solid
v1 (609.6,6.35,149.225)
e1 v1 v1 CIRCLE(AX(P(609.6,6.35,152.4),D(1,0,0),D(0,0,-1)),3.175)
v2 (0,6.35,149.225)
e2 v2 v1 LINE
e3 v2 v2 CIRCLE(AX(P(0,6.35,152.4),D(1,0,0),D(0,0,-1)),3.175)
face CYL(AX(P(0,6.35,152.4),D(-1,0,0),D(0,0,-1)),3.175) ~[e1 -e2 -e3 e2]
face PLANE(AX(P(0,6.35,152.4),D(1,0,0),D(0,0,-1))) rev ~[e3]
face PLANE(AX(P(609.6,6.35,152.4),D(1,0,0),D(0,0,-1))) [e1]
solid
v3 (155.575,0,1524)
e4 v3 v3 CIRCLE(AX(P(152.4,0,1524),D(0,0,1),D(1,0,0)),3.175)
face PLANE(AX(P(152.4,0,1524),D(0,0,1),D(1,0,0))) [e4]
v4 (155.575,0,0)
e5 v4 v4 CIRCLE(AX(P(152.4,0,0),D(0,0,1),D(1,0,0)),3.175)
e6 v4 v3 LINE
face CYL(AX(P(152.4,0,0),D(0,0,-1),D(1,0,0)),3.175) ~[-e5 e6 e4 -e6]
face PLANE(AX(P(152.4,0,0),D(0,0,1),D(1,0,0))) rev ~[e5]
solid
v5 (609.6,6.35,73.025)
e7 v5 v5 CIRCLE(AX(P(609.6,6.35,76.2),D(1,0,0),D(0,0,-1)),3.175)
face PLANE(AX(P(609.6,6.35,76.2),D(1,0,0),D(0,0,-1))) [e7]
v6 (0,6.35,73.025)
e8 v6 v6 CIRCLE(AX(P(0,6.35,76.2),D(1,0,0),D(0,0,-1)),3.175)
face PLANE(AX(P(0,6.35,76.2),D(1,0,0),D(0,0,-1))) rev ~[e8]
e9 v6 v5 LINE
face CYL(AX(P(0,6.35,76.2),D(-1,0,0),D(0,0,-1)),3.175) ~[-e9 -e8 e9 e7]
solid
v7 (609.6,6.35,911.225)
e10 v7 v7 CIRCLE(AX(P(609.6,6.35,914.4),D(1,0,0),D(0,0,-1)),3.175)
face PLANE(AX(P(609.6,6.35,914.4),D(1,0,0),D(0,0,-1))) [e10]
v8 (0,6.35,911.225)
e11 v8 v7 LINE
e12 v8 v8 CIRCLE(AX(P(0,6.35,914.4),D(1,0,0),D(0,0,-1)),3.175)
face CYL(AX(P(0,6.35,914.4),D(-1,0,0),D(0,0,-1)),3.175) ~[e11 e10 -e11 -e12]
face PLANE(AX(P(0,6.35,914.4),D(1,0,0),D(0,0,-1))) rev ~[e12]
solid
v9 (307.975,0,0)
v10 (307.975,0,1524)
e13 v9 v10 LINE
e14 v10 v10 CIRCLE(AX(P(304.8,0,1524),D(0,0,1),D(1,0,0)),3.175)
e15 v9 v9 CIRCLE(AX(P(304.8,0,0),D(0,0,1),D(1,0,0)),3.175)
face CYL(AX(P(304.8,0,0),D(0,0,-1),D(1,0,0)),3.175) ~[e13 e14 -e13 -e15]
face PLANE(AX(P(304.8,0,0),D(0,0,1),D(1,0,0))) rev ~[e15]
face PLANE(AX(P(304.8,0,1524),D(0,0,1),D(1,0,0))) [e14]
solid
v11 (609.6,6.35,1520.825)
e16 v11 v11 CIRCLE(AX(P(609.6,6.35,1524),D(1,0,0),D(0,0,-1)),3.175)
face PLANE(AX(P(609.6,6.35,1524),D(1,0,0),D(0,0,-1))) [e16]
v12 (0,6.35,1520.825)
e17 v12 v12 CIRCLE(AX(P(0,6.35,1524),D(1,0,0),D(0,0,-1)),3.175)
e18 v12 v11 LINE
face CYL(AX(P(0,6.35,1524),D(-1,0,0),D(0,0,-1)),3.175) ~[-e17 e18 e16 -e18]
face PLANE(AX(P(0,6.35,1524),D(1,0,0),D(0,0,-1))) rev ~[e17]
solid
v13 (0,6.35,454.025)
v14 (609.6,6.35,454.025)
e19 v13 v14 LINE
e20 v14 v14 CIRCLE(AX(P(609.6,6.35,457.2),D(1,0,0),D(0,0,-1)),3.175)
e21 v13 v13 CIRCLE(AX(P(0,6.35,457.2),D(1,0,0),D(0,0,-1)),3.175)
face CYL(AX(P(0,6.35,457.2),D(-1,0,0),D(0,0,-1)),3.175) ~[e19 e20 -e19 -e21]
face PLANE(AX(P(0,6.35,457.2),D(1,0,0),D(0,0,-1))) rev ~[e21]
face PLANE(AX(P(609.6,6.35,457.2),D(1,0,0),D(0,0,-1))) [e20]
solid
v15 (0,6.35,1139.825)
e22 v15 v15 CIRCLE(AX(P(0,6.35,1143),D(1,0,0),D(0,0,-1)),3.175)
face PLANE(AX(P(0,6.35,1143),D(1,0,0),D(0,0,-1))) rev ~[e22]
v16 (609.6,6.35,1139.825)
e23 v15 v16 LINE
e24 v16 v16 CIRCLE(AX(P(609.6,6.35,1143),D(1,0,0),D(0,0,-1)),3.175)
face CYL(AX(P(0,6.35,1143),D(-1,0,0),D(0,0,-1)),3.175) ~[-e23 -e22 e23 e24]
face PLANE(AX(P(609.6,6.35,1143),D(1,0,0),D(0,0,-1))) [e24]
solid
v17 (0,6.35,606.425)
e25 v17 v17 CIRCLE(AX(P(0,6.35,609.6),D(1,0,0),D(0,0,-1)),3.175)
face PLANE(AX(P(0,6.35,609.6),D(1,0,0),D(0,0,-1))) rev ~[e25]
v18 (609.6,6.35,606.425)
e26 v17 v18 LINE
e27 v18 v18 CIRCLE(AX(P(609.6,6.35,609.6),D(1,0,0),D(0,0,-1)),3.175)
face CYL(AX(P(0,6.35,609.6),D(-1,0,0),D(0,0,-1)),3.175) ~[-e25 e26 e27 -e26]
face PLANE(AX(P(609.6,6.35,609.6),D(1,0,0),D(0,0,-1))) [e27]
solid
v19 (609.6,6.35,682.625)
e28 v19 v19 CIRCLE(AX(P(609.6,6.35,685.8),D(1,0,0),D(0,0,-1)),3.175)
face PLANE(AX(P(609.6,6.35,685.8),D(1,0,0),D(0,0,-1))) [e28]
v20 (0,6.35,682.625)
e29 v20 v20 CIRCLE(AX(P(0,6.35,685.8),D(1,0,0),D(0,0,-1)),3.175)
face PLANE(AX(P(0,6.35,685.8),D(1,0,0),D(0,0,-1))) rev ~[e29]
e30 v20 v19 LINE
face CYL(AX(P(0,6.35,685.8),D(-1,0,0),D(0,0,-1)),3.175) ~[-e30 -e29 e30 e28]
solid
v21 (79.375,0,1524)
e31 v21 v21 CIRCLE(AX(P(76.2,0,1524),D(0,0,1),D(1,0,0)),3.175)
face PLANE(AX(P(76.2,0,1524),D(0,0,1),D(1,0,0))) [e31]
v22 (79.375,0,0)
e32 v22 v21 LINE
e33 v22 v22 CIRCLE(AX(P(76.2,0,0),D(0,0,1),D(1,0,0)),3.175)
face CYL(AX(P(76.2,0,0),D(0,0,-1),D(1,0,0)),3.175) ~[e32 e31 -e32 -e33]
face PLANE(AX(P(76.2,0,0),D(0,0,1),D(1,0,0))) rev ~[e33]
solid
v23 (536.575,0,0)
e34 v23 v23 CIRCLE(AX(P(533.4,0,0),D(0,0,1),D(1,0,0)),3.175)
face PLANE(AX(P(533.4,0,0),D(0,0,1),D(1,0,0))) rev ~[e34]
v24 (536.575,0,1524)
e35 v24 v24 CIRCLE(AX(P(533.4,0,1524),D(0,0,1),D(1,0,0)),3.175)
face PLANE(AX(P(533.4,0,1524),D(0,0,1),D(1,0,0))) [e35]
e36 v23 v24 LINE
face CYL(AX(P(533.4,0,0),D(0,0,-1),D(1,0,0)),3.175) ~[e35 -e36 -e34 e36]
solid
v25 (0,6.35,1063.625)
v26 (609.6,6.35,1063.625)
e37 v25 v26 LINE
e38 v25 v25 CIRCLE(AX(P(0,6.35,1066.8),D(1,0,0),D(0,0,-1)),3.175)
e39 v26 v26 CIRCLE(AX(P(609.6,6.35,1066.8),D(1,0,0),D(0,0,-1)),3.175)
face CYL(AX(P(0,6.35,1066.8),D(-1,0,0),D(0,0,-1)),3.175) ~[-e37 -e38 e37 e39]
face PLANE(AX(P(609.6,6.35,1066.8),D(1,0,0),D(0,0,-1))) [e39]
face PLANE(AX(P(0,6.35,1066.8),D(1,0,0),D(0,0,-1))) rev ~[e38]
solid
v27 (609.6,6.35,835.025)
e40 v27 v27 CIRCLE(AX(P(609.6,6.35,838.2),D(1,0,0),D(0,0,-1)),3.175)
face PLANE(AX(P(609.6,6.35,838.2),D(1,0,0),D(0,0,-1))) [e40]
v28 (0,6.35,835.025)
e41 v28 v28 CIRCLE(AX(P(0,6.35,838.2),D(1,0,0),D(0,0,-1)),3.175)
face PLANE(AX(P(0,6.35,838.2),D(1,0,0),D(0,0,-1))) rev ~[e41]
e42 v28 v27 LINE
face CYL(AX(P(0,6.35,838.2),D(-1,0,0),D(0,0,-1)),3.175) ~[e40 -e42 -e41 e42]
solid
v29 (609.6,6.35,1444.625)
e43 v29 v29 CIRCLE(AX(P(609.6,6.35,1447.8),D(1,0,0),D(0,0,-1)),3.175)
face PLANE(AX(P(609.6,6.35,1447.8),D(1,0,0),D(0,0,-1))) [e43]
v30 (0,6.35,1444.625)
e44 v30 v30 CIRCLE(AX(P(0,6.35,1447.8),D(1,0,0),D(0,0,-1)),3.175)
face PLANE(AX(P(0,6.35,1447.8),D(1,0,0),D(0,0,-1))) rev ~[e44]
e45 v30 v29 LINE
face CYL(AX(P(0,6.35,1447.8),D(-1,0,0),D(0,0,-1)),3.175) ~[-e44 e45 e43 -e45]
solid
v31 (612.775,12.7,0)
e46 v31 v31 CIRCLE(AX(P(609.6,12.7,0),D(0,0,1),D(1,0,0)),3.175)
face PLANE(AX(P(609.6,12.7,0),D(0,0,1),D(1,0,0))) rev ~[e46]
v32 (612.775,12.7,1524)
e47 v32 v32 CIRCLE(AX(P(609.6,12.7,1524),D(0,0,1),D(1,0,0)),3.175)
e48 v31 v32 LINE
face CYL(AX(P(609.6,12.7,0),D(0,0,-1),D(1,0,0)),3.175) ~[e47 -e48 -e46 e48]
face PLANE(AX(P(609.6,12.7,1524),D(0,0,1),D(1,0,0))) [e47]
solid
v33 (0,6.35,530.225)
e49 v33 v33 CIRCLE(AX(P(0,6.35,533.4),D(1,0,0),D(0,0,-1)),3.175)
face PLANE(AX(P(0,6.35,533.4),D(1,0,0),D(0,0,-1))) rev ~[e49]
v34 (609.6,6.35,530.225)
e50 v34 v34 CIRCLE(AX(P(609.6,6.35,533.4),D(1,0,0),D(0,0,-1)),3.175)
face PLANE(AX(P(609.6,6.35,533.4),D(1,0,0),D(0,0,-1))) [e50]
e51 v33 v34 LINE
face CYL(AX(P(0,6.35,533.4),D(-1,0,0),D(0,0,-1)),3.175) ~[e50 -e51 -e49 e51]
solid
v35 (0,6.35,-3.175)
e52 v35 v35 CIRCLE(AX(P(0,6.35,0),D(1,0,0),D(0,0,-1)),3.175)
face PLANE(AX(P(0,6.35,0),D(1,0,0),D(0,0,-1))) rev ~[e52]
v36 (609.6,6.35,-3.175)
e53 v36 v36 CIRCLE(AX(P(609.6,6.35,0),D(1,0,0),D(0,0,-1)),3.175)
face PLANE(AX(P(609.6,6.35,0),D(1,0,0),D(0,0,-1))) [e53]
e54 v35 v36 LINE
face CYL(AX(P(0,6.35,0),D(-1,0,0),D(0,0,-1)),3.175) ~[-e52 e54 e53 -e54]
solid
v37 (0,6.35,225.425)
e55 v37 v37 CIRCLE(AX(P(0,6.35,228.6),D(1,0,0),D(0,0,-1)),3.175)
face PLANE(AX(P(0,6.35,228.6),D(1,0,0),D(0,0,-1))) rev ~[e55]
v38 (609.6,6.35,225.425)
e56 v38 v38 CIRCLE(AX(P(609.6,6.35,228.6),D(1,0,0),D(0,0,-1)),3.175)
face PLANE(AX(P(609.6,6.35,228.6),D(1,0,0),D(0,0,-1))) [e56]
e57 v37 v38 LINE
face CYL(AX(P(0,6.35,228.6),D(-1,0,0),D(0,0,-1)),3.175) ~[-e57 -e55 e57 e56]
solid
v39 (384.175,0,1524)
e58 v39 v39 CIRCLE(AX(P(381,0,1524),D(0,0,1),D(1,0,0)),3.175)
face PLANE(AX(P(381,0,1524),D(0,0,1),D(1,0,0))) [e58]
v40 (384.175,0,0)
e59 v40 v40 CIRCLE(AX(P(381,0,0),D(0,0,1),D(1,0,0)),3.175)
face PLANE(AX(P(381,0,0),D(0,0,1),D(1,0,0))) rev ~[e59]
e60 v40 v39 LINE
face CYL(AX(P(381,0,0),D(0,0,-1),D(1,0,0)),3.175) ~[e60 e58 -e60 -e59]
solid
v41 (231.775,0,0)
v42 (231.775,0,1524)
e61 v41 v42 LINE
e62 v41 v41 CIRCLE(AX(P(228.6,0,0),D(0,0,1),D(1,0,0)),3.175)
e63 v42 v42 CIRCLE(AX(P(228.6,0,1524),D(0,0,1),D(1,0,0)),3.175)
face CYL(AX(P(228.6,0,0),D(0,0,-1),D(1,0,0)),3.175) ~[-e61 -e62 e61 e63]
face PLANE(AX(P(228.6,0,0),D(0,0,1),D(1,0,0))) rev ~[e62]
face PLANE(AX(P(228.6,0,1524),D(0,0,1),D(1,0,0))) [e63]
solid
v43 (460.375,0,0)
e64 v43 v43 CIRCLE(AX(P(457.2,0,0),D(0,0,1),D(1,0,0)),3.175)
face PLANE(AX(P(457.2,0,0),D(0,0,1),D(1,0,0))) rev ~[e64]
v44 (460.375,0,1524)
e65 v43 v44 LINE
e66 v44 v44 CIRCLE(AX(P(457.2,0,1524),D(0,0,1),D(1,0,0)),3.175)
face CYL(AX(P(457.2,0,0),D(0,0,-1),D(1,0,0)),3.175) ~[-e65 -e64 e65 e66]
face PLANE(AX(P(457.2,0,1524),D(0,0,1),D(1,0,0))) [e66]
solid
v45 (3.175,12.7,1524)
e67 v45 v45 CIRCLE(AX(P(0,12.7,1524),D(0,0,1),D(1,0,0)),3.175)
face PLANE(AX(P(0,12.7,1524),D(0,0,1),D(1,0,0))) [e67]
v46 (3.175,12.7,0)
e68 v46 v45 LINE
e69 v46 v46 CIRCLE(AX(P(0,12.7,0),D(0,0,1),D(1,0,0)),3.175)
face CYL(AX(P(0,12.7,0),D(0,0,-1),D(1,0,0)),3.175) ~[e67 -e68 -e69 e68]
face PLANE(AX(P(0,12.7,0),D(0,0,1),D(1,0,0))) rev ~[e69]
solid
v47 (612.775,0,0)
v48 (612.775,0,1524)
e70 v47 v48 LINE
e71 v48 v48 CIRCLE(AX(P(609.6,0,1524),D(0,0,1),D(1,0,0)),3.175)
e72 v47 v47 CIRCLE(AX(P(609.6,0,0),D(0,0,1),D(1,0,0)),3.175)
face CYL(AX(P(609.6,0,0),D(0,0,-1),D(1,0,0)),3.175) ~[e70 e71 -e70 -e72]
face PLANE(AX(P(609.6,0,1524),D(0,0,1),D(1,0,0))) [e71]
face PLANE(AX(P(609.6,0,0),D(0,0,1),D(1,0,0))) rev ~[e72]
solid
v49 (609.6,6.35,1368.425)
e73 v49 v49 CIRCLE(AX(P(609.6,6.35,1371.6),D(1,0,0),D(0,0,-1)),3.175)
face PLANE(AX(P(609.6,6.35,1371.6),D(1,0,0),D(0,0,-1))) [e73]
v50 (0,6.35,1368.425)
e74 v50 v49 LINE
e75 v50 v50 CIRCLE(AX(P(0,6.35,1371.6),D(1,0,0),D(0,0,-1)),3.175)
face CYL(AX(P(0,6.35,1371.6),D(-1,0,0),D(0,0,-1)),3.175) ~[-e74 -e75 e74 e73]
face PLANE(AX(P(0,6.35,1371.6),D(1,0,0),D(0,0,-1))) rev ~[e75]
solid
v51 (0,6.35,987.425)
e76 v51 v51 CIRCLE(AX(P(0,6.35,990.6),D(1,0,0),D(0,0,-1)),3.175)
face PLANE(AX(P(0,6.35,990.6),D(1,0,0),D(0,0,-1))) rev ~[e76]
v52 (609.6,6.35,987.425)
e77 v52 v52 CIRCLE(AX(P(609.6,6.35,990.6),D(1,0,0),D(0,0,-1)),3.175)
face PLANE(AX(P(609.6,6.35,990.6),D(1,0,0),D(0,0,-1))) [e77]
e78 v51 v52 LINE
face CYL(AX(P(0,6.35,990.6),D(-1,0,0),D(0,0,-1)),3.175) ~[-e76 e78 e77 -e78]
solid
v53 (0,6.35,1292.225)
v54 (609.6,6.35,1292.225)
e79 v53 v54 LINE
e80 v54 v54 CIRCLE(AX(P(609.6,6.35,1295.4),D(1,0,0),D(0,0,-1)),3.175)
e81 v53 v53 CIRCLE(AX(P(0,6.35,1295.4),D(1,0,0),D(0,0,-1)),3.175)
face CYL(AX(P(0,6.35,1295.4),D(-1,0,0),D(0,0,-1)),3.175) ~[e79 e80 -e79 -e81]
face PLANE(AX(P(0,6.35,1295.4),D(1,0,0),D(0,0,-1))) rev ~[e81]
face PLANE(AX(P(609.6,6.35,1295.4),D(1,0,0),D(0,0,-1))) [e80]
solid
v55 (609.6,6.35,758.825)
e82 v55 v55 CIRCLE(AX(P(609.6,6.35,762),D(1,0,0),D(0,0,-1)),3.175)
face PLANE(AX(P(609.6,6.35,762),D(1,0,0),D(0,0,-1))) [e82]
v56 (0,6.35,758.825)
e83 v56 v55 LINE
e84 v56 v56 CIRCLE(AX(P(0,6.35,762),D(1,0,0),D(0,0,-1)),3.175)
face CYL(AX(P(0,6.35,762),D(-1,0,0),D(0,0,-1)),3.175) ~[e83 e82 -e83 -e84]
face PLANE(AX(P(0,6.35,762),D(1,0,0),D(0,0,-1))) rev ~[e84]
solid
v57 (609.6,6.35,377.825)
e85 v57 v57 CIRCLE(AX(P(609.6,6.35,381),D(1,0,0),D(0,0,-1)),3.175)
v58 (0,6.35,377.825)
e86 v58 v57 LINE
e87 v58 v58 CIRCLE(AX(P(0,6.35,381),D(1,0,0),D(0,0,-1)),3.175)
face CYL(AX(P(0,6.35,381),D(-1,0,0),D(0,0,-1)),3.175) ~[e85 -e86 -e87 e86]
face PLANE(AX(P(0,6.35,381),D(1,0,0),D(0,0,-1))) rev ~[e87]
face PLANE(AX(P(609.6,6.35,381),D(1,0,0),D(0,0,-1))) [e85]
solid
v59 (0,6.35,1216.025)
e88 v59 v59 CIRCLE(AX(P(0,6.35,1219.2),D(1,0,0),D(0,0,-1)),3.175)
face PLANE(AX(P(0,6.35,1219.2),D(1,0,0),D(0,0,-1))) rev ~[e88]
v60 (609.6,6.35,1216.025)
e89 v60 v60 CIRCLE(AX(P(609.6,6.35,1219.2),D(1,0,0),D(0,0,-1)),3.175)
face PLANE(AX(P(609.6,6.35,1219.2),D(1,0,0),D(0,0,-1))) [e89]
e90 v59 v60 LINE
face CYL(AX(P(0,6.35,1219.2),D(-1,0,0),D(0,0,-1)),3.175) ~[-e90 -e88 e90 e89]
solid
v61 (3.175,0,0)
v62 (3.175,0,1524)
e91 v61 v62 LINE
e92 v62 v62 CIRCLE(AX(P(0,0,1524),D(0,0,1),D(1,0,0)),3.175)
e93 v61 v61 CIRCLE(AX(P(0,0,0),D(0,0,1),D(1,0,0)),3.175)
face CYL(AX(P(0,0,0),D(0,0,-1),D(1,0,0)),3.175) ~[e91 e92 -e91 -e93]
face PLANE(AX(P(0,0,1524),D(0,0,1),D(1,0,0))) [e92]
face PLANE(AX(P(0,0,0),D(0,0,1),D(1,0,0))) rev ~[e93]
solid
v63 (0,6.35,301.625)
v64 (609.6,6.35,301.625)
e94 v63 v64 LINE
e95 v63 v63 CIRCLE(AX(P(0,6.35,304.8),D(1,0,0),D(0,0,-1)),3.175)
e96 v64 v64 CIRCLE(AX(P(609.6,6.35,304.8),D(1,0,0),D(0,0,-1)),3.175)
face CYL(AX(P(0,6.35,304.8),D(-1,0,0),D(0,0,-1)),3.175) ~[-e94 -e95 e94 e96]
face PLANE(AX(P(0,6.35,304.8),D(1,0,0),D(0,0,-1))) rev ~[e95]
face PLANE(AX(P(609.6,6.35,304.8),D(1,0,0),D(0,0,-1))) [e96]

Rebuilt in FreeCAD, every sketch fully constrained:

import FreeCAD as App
import Part
import Sketcher

V = App.Vector
Q = App.Units.Quantity

doc = App.newDocument("Part")
body = doc.addObject("PartDesign::Body", "Body")

# Sketch on XY plane
sketch1 = body.newObject("Sketcher::SketchObject", "Sketch")
sketch1.AttachmentSupport = (doc.getObject("XY_Plane"), [""])
sketch1.MapMode = "FlatFace"
sketch1.addGeometry(Part.Circle(V(0, 0, 0), V(0, 0, 1), 3.2), False)
sketch1.addConstraint([
    Sketcher.Constraint("Coincident", 0, 3, -1, 1),
    Sketcher.Constraint("Diameter", 0, Q("0.25 in")),
])
pad1 = body.newObject("PartDesign::Pad", "Pad")
pad1.Profile = sketch1
pad1.Length = Q("60 in")
body2 = doc.addObject("PartDesign::Body", "Body001")

# Sketch on XY plane
sketch2 = body2.newObject("Sketcher::SketchObject", "Sketch001")
sketch2.AttachmentSupport = (doc.getObject("XY_Plane001"), [""])
sketch2.MapMode = "FlatFace"
sketch2.addGeometry(Part.Circle(V(0, 12.7, 0), V(0, 0, 1), 3.2), False)
sketch2.addConstraint([
    Sketcher.Constraint("PointOnObject", 0, 3, -2),
    Sketcher.Constraint("Diameter", 0, Q("0.25 in")),
    Sketcher.Constraint("DistanceY", -1, 1, 0, 3, Q("0.5 in")),
])
pad2 = body2.newObject("PartDesign::Pad", "Pad001")
pad2.Profile = sketch2
pad2.Length = Q("60 in")
body3 = doc.addObject("PartDesign::Body", "Body002")

# Sketch on XY plane
sketch3 = body3.newObject("Sketcher::SketchObject", "Sketch002")
sketch3.AttachmentSupport = (doc.getObject("XY_Plane002"), [""])
sketch3.MapMode = "FlatFace"
sketch3.addGeometry(Part.Circle(V(76.2, 0, 0), V(0, 0, 1), 3.2), False)
sketch3.addConstraint([
    Sketcher.Constraint("PointOnObject", 0, 3, -1),
    Sketcher.Constraint("Diameter", 0, Q("0.25 in")),
    Sketcher.Constraint("DistanceX", -1, 1, 0, 3, Q("3 in")),
])
pad3 = body3.newObject("PartDesign::Pad", "Pad002")
pad3.Profile = sketch3
pad3.Length = Q("60 in")
body4 = doc.addObject("PartDesign::Body", "Body003")

# Sketch on XY plane
sketch4 = body4.newObject("Sketcher::SketchObject", "Sketch003")
sketch4.AttachmentSupport = (doc.getObject("XY_Plane003"), [""])
sketch4.MapMode = "FlatFace"
sketch4.addGeometry(Part.Circle(V(152.4, 0, 0), V(0, 0, 1), 3.2), False)
sketch4.addConstraint([
    Sketcher.Constraint("PointOnObject", 0, 3, -1),
    Sketcher.Constraint("Diameter", 0, Q("0.25 in")),
    Sketcher.Constraint("DistanceX", -1, 1, 0, 3, Q("6 in")),
])
pad4 = body4.newObject("PartDesign::Pad", "Pad003")
pad4.Profile = sketch4
pad4.Length = Q("60 in")
body5 = doc.addObject("PartDesign::Body", "Body004")

# Sketch on XY plane
sketch5 = body5.newObject("Sketcher::SketchObject", "Sketch004")
sketch5.AttachmentSupport = (doc.getObject("XY_Plane004"), [""])
sketch5.MapMode = "FlatFace"
sketch5.addGeometry(Part.Circle(V(228.6, 0, 0), V(0, 0, 1), 3.2), False)
sketch5.addConstraint([
    Sketcher.Constraint("PointOnObject", 0, 3, -1),
    Sketcher.Constraint("Diameter", 0, Q("0.25 in")),
    Sketcher.Constraint("DistanceX", -1, 1, 0, 3, Q("9 in")),
])
pad5 = body5.newObject("PartDesign::Pad", "Pad004")
pad5.Profile = sketch5
pad5.Length = Q("60 in")
body6 = doc.addObject("PartDesign::Body", "Body005")

# Sketch on XY plane
sketch6 = body6.newObject("Sketcher::SketchObject", "Sketch005")
sketch6.AttachmentSupport = (doc.getObject("XY_Plane005"), [""])
sketch6.MapMode = "FlatFace"
sketch6.addGeometry(Part.Circle(V(304.8, 0, 0), V(0, 0, 1), 3.2), False)
sketch6.addConstraint([
    Sketcher.Constraint("PointOnObject", 0, 3, -1),
    Sketcher.Constraint("Diameter", 0, Q("0.25 in")),
    Sketcher.Constraint("DistanceX", -1, 1, 0, 3, Q("12 in")),
])
pad6 = body6.newObject("PartDesign::Pad", "Pad005")
pad6.Profile = sketch6
pad6.Length = Q("60 in")
body7 = doc.addObject("PartDesign::Body", "Body006")

# Sketch on XY plane
sketch7 = body7.newObject("Sketcher::SketchObject", "Sketch006")
sketch7.AttachmentSupport = (doc.getObject("XY_Plane006"), [""])
sketch7.MapMode = "FlatFace"
sketch7.addGeometry(Part.Circle(V(381, 0, 0), V(0, 0, 1), 3.2), False)
sketch7.addConstraint([
    Sketcher.Constraint("PointOnObject", 0, 3, -1),
    Sketcher.Constraint("Diameter", 0, Q("0.25 in")),
    Sketcher.Constraint("DistanceX", -1, 1, 0, 3, Q("15 in")),
])
pad7 = body7.newObject("PartDesign::Pad", "Pad006")
pad7.Profile = sketch7
pad7.Length = Q("60 in")
body8 = doc.addObject("PartDesign::Body", "Body007")

# Sketch on XY plane
sketch8 = body8.newObject("Sketcher::SketchObject", "Sketch007")
sketch8.AttachmentSupport = (doc.getObject("XY_Plane007"), [""])
sketch8.MapMode = "FlatFace"
sketch8.addGeometry(Part.Circle(V(457.2, 0, 0), V(0, 0, 1), 3.2), False)
sketch8.addConstraint([
    Sketcher.Constraint("PointOnObject", 0, 3, -1),
    Sketcher.Constraint("Diameter", 0, Q("0.25 in")),
    Sketcher.Constraint("DistanceX", -1, 1, 0, 3, Q("18 in")),
])
pad8 = body8.newObject("PartDesign::Pad", "Pad007")
pad8.Profile = sketch8
pad8.Length = Q("60 in")
body9 = doc.addObject("PartDesign::Body", "Body008")

# Sketch on XY plane
sketch9 = body9.newObject("Sketcher::SketchObject", "Sketch008")
sketch9.AttachmentSupport = (doc.getObject("XY_Plane008"), [""])
sketch9.MapMode = "FlatFace"
sketch9.addGeometry(Part.Circle(V(533.4, 0, 0), V(0, 0, 1), 3.2), False)
sketch9.addConstraint([
    Sketcher.Constraint("PointOnObject", 0, 3, -1),
    Sketcher.Constraint("Diameter", 0, Q("0.25 in")),
    Sketcher.Constraint("DistanceX", -1, 1, 0, 3, Q("21 in")),
])
pad9 = body9.newObject("PartDesign::Pad", "Pad008")
pad9.Profile = sketch9
pad9.Length = Q("60 in")
body10 = doc.addObject("PartDesign::Body", "Body009")

# Sketch on XY plane
sketch10 = body10.newObject("Sketcher::SketchObject", "Sketch009")
sketch10.AttachmentSupport = (doc.getObject("XY_Plane009"), [""])
sketch10.MapMode = "FlatFace"
sketch10.addGeometry(Part.Circle(V(609.6, 0, 0), V(0, 0, 1), 3.2), False)
sketch10.addConstraint([
    Sketcher.Constraint("PointOnObject", 0, 3, -1),
    Sketcher.Constraint("Diameter", 0, Q("0.25 in")),
    Sketcher.Constraint("DistanceX", -1, 1, 0, 3, Q("24 in")),
])
pad10 = body10.newObject("PartDesign::Pad", "Pad009")
pad10.Profile = sketch10
pad10.Length = Q("60 in")
body11 = doc.addObject("PartDesign::Body", "Body010")

# Sketch on XY plane
sketch11 = body11.newObject("Sketcher::SketchObject", "Sketch010")
sketch11.AttachmentSupport = (doc.getObject("XY_Plane010"), [""])
sketch11.MapMode = "FlatFace"
sketch11.addGeometry(Part.Circle(V(609.6, 12.7, 0), V(0, 0, 1), 3.2), False)
sketch11.addConstraint([
    Sketcher.Constraint("Diameter", 0, Q("0.25 in")),
    Sketcher.Constraint("DistanceX", -1, 1, 0, 3, Q("24 in")),
    Sketcher.Constraint("DistanceY", -1, 1, 0, 3, Q("0.5 in")),
])
pad11 = body11.newObject("PartDesign::Pad", "Pad010")
pad11.Profile = sketch11
pad11.Length = Q("60 in")
body12 = doc.addObject("PartDesign::Body", "Body011")

# Sketch on YZ plane
sketch12 = body12.newObject("Sketcher::SketchObject", "Sketch011")
sketch12.AttachmentSupport = (doc.getObject("YZ_Plane011"), [""])
sketch12.MapMode = "FlatFace"
sketch12.addGeometry(Part.Circle(V(6.3, 0, 0), V(0, 0, 1), 3.2), False)
sketch12.addConstraint([
    Sketcher.Constraint("PointOnObject", 0, 3, -1),
    Sketcher.Constraint("Diameter", 0, Q("0.25 in")),
    Sketcher.Constraint("DistanceX", -1, 1, 0, 3, Q("0.25 in")),
])
pad12 = body12.newObject("PartDesign::Pad", "Pad011")
pad12.Profile = sketch12
pad12.Length = Q("24 in")
body13 = doc.addObject("PartDesign::Body", "Body012")

# Sketch on YZ plane
sketch13 = body13.newObject("Sketcher::SketchObject", "Sketch012")
sketch13.AttachmentSupport = (doc.getObject("YZ_Plane012"), [""])
sketch13.MapMode = "FlatFace"
sketch13.addGeometry(Part.Circle(V(6.3, 76.2, 0), V(0, 0, 1), 3.2), False)
sketch13.addConstraint([
    Sketcher.Constraint("Diameter", 0, Q("0.25 in")),
    Sketcher.Constraint("DistanceY", -1, 1, 0, 3, Q("3 in")),
    Sketcher.Constraint("DistanceX", -1, 1, 0, 3, Q("0.25 in")),
])
pad13 = body13.newObject("PartDesign::Pad", "Pad012")
pad13.Profile = sketch13
pad13.Length = Q("24 in")
body14 = doc.addObject("PartDesign::Body", "Body013")

# Sketch on YZ plane
sketch14 = body14.newObject("Sketcher::SketchObject", "Sketch013")
sketch14.AttachmentSupport = (doc.getObject("YZ_Plane013"), [""])
sketch14.MapMode = "FlatFace"
sketch14.addGeometry(Part.Circle(V(6.3, 152.4, 0), V(0, 0, 1), 3.2), False)
sketch14.addConstraint([
    Sketcher.Constraint("Diameter", 0, Q("0.25 in")),
    Sketcher.Constraint("DistanceY", -1, 1, 0, 3, Q("6 in")),
    Sketcher.Constraint("DistanceX", -1, 1, 0, 3, Q("0.25 in")),
])
pad14 = body14.newObject("PartDesign::Pad", "Pad013")
pad14.Profile = sketch14
pad14.Length = Q("24 in")
body15 = doc.addObject("PartDesign::Body", "Body014")

# Sketch on YZ plane
sketch15 = body15.newObject("Sketcher::SketchObject", "Sketch014")
sketch15.AttachmentSupport = (doc.getObject("YZ_Plane014"), [""])
sketch15.MapMode = "FlatFace"
sketch15.addGeometry(Part.Circle(V(6.3, 228.6, 0), V(0, 0, 1), 3.2), False)
sketch15.addConstraint([
    Sketcher.Constraint("Diameter", 0, Q("0.25 in")),
    Sketcher.Constraint("DistanceY", -1, 1, 0, 3, Q("9 in")),
    Sketcher.Constraint("DistanceX", -1, 1, 0, 3, Q("0.25 in")),
])
pad15 = body15.newObject("PartDesign::Pad", "Pad014")
pad15.Profile = sketch15
pad15.Length = Q("24 in")
body16 = doc.addObject("PartDesign::Body", "Body015")

# Sketch on YZ plane
sketch16 = body16.newObject("Sketcher::SketchObject", "Sketch015")
sketch16.AttachmentSupport = (doc.getObject("YZ_Plane015"), [""])
sketch16.MapMode = "FlatFace"
sketch16.addGeometry(Part.Circle(V(6.3, 304.8, 0), V(0, 0, 1), 3.2), False)
sketch16.addConstraint([
    Sketcher.Constraint("Diameter", 0, Q("0.25 in")),
    Sketcher.Constraint("DistanceY", -1, 1, 0, 3, Q("12 in")),
    Sketcher.Constraint("DistanceX", -1, 1, 0, 3, Q("0.25 in")),
])
pad16 = body16.newObject("PartDesign::Pad", "Pad015")
pad16.Profile = sketch16
pad16.Length = Q("24 in")
body17 = doc.addObject("PartDesign::Body", "Body016")

# Sketch on YZ plane
sketch17 = body17.newObject("Sketcher::SketchObject", "Sketch016")
sketch17.AttachmentSupport = (doc.getObject("YZ_Plane016"), [""])
sketch17.MapMode = "FlatFace"
sketch17.addGeometry(Part.Circle(V(6.3, 381, 0), V(0, 0, 1), 3.2), False)
sketch17.addConstraint([
    Sketcher.Constraint("Diameter", 0, Q("0.25 in")),
    Sketcher.Constraint("DistanceY", -1, 1, 0, 3, Q("15 in")),
    Sketcher.Constraint("DistanceX", -1, 1, 0, 3, Q("0.25 in")),
])
pad17 = body17.newObject("PartDesign::Pad", "Pad016")
pad17.Profile = sketch17
pad17.Length = Q("24 in")
body18 = doc.addObject("PartDesign::Body", "Body017")

# Sketch on YZ plane
sketch18 = body18.newObject("Sketcher::SketchObject", "Sketch017")
sketch18.AttachmentSupport = (doc.getObject("YZ_Plane017"), [""])
sketch18.MapMode = "FlatFace"
sketch18.addGeometry(Part.Circle(V(6.3, 457.2, 0), V(0, 0, 1), 3.2), False)
sketch18.addConstraint([
    Sketcher.Constraint("Diameter", 0, Q("0.25 in")),
    Sketcher.Constraint("DistanceY", -1, 1, 0, 3, Q("18 in")),
    Sketcher.Constraint("DistanceX", -1, 1, 0, 3, Q("0.25 in")),
])
pad18 = body18.newObject("PartDesign::Pad", "Pad017")
pad18.Profile = sketch18
pad18.Length = Q("24 in")
body19 = doc.addObject("PartDesign::Body", "Body018")

# Sketch on YZ plane
sketch19 = body19.newObject("Sketcher::SketchObject", "Sketch018")
sketch19.AttachmentSupport = (doc.getObject("YZ_Plane018"), [""])
sketch19.MapMode = "FlatFace"
sketch19.addGeometry(Part.Circle(V(6.3, 533.4, 0), V(0, 0, 1), 3.2), False)
sketch19.addConstraint([
    Sketcher.Constraint("Diameter", 0, Q("0.25 in")),
    Sketcher.Constraint("DistanceY", -1, 1, 0, 3, Q("21 in")),
    Sketcher.Constraint("DistanceX", -1, 1, 0, 3, Q("0.25 in")),
])
pad19 = body19.newObject("PartDesign::Pad", "Pad018")
pad19.Profile = sketch19
pad19.Length = Q("24 in")
body20 = doc.addObject("PartDesign::Body", "Body019")

# Sketch on YZ plane
sketch20 = body20.newObject("Sketcher::SketchObject", "Sketch019")
sketch20.AttachmentSupport = (doc.getObject("YZ_Plane019"), [""])
sketch20.MapMode = "FlatFace"
sketch20.addGeometry(Part.Circle(V(6.3, 609.6, 0), V(0, 0, 1), 3.2), False)
sketch20.addConstraint([
    Sketcher.Constraint("Diameter", 0, Q("0.25 in")),
    Sketcher.Constraint("DistanceY", -1, 1, 0, 3, Q("24 in")),
    Sketcher.Constraint("DistanceX", -1, 1, 0, 3, Q("0.25 in")),
])
pad20 = body20.newObject("PartDesign::Pad", "Pad019")
pad20.Profile = sketch20
pad20.Length = Q("24 in")
body21 = doc.addObject("PartDesign::Body", "Body020")

# Sketch on YZ plane
sketch21 = body21.newObject("Sketcher::SketchObject", "Sketch020")
sketch21.AttachmentSupport = (doc.getObject("YZ_Plane020"), [""])
sketch21.MapMode = "FlatFace"
sketch21.addGeometry(Part.Circle(V(6.3, 685.8, 0), V(0, 0, 1), 3.2), False)
sketch21.addConstraint([
    Sketcher.Constraint("Diameter", 0, Q("0.25 in")),
    Sketcher.Constraint("DistanceY", -1, 1, 0, 3, Q("27 in")),
    Sketcher.Constraint("DistanceX", -1, 1, 0, 3, Q("0.25 in")),
])
pad21 = body21.newObject("PartDesign::Pad", "Pad020")
pad21.Profile = sketch21
pad21.Length = Q("24 in")
body22 = doc.addObject("PartDesign::Body", "Body021")

# Sketch on YZ plane
sketch22 = body22.newObject("Sketcher::SketchObject", "Sketch021")
sketch22.AttachmentSupport = (doc.getObject("YZ_Plane021"), [""])
sketch22.MapMode = "FlatFace"
sketch22.addGeometry(Part.Circle(V(6.3, 762, 0), V(0, 0, 1), 3.2), False)
sketch22.addConstraint([
    Sketcher.Constraint("Diameter", 0, Q("0.25 in")),
    Sketcher.Constraint("DistanceY", -1, 1, 0, 3, Q("30 in")),
    Sketcher.Constraint("DistanceX", -1, 1, 0, 3, Q("0.25 in")),
])
pad22 = body22.newObject("PartDesign::Pad", "Pad021")
pad22.Profile = sketch22
pad22.Length = Q("24 in")
body23 = doc.addObject("PartDesign::Body", "Body022")

# Sketch on YZ plane
sketch23 = body23.newObject("Sketcher::SketchObject", "Sketch022")
sketch23.AttachmentSupport = (doc.getObject("YZ_Plane022"), [""])
sketch23.MapMode = "FlatFace"
sketch23.addGeometry(Part.Circle(V(6.3, 838.2, 0), V(0, 0, 1), 3.2), False)
sketch23.addConstraint([
    Sketcher.Constraint("Diameter", 0, Q("0.25 in")),
    Sketcher.Constraint("DistanceY", -1, 1, 0, 3, Q("33 in")),
    Sketcher.Constraint("DistanceX", -1, 1, 0, 3, Q("0.25 in")),
])
pad23 = body23.newObject("PartDesign::Pad", "Pad022")
pad23.Profile = sketch23
pad23.Length = Q("24 in")
body24 = doc.addObject("PartDesign::Body", "Body023")

# Sketch on YZ plane
sketch24 = body24.newObject("Sketcher::SketchObject", "Sketch023")
sketch24.AttachmentSupport = (doc.getObject("YZ_Plane023"), [""])
sketch24.MapMode = "FlatFace"
sketch24.addGeometry(Part.Circle(V(6.3, 914.4, 0), V(0, 0, 1), 3.2), False)
sketch24.addConstraint([
    Sketcher.Constraint("Diameter", 0, Q("0.25 in")),
    Sketcher.Constraint("DistanceY", -1, 1, 0, 3, Q("36 in")),
    Sketcher.Constraint("DistanceX", -1, 1, 0, 3, Q("0.25 in")),
])
pad24 = body24.newObject("PartDesign::Pad", "Pad023")
pad24.Profile = sketch24
pad24.Length = Q("24 in")
body25 = doc.addObject("PartDesign::Body", "Body024")

# Sketch on YZ plane
sketch25 = body25.newObject("Sketcher::SketchObject", "Sketch024")
sketch25.AttachmentSupport = (doc.getObject("YZ_Plane024"), [""])
sketch25.MapMode = "FlatFace"
sketch25.addGeometry(Part.Circle(V(6.3, 990.6, 0), V(0, 0, 1), 3.2), False)
sketch25.addConstraint([
    Sketcher.Constraint("Diameter", 0, Q("0.25 in")),
    Sketcher.Constraint("DistanceY", -1, 1, 0, 3, Q("39 in")),
    Sketcher.Constraint("DistanceX", -1, 1, 0, 3, Q("0.25 in")),
])
pad25 = body25.newObject("PartDesign::Pad", "Pad024")
pad25.Profile = sketch25
pad25.Length = Q("24 in")
body26 = doc.addObject("PartDesign::Body", "Body025")

# Sketch on YZ plane
sketch26 = body26.newObject("Sketcher::SketchObject", "Sketch025")
sketch26.AttachmentSupport = (doc.getObject("YZ_Plane025"), [""])
sketch26.MapMode = "FlatFace"
sketch26.addGeometry(Part.Circle(V(6.3, 1066.8, 0), V(0, 0, 1), 3.2), False)
sketch26.addConstraint([
    Sketcher.Constraint("Diameter", 0, Q("0.25 in")),
    Sketcher.Constraint("DistanceY", -1, 1, 0, 3, Q("42 in")),
    Sketcher.Constraint("DistanceX", -1, 1, 0, 3, Q("0.25 in")),
])
pad26 = body26.newObject("PartDesign::Pad", "Pad025")
pad26.Profile = sketch26
pad26.Length = Q("24 in")
body27 = doc.addObject("PartDesign::Body", "Body026")

# Sketch on YZ plane
sketch27 = body27.newObject("Sketcher::SketchObject", "Sketch026")
sketch27.AttachmentSupport = (doc.getObject("YZ_Plane026"), [""])
sketch27.MapMode = "FlatFace"
sketch27.addGeometry(Part.Circle(V(6.3, 1143, 0), V(0, 0, 1), 3.2), False)
sketch27.addConstraint([
    Sketcher.Constraint("Diameter", 0, Q("0.25 in")),
    Sketcher.Constraint("DistanceY", -1, 1, 0, 3, Q("45 in")),
    Sketcher.Constraint("DistanceX", -1, 1, 0, 3, Q("0.25 in")),
])
pad27 = body27.newObject("PartDesign::Pad", "Pad026")
pad27.Profile = sketch27
pad27.Length = Q("24 in")
body28 = doc.addObject("PartDesign::Body", "Body027")

# Sketch on YZ plane
sketch28 = body28.newObject("Sketcher::SketchObject", "Sketch027")
sketch28.AttachmentSupport = (doc.getObject("YZ_Plane027"), [""])
sketch28.MapMode = "FlatFace"
sketch28.addGeometry(Part.Circle(V(6.3, 1219.2, 0), V(0, 0, 1), 3.2), False)
sketch28.addConstraint([
    Sketcher.Constraint("Diameter", 0, Q("0.25 in")),
    Sketcher.Constraint("DistanceY", -1, 1, 0, 3, Q("48 in")),
    Sketcher.Constraint("DistanceX", -1, 1, 0, 3, Q("0.25 in")),
])
pad28 = body28.newObject("PartDesign::Pad", "Pad027")
pad28.Profile = sketch28
pad28.Length = Q("24 in")
body29 = doc.addObject("PartDesign::Body", "Body028")

# Sketch on YZ plane
sketch29 = body29.newObject("Sketcher::SketchObject", "Sketch028")
sketch29.AttachmentSupport = (doc.getObject("YZ_Plane028"), [""])
sketch29.MapMode = "FlatFace"
sketch29.addGeometry(Part.Circle(V(6.3, 1295.4, 0), V(0, 0, 1), 3.2), False)
sketch29.addConstraint([
    Sketcher.Constraint("Diameter", 0, Q("0.25 in")),
    Sketcher.Constraint("DistanceY", -1, 1, 0, 3, Q("51 in")),
    Sketcher.Constraint("DistanceX", -1, 1, 0, 3, Q("0.25 in")),
])
pad29 = body29.newObject("PartDesign::Pad", "Pad028")
pad29.Profile = sketch29
pad29.Length = Q("24 in")
body30 = doc.addObject("PartDesign::Body", "Body029")

# Sketch on YZ plane
sketch30 = body30.newObject("Sketcher::SketchObject", "Sketch029")
sketch30.AttachmentSupport = (doc.getObject("YZ_Plane029"), [""])
sketch30.MapMode = "FlatFace"
sketch30.addGeometry(Part.Circle(V(6.3, 1371.6, 0), V(0, 0, 1), 3.2), False)
sketch30.addConstraint([
    Sketcher.Constraint("Diameter", 0, Q("0.25 in")),
    Sketcher.Constraint("DistanceY", -1, 1, 0, 3, Q("54 in")),
    Sketcher.Constraint("DistanceX", -1, 1, 0, 3, Q("0.25 in")),
])
pad30 = body30.newObject("PartDesign::Pad", "Pad029")
pad30.Profile = sketch30
pad30.Length = Q("24 in")
body31 = doc.addObject("PartDesign::Body", "Body030")

# Sketch on YZ plane
sketch31 = body31.newObject("Sketcher::SketchObject", "Sketch030")
sketch31.AttachmentSupport = (doc.getObject("YZ_Plane030"), [""])
sketch31.MapMode = "FlatFace"
sketch31.addGeometry(Part.Circle(V(6.3, 1447.8, 0), V(0, 0, 1), 3.2), False)
sketch31.addConstraint([
    Sketcher.Constraint("Diameter", 0, Q("0.25 in")),
    Sketcher.Constraint("DistanceY", -1, 1, 0, 3, Q("57 in")),
    Sketcher.Constraint("DistanceX", -1, 1, 0, 3, Q("0.25 in")),
])
pad31 = body31.newObject("PartDesign::Pad", "Pad030")
pad31.Profile = sketch31
pad31.Length = Q("24 in")
body32 = doc.addObject("PartDesign::Body", "Body031")

# Sketch on YZ plane
sketch32 = body32.newObject("Sketcher::SketchObject", "Sketch031")
sketch32.AttachmentSupport = (doc.getObject("YZ_Plane031"), [""])
sketch32.MapMode = "FlatFace"
sketch32.addGeometry(Part.Circle(V(6.3, 1524, 0), V(0, 0, 1), 3.2), False)
sketch32.addConstraint([
    Sketcher.Constraint("Diameter", 0, Q("0.25 in")),
    Sketcher.Constraint("DistanceY", -1, 1, 0, 3, Q("60 in")),
    Sketcher.Constraint("DistanceX", -1, 1, 0, 3, Q("0.25 in")),
])
pad32 = body32.newObject("PartDesign::Pad", "Pad031")
pad32.Profile = sketch32
pad32.Length = Q("24 in")

doc.recompute()
